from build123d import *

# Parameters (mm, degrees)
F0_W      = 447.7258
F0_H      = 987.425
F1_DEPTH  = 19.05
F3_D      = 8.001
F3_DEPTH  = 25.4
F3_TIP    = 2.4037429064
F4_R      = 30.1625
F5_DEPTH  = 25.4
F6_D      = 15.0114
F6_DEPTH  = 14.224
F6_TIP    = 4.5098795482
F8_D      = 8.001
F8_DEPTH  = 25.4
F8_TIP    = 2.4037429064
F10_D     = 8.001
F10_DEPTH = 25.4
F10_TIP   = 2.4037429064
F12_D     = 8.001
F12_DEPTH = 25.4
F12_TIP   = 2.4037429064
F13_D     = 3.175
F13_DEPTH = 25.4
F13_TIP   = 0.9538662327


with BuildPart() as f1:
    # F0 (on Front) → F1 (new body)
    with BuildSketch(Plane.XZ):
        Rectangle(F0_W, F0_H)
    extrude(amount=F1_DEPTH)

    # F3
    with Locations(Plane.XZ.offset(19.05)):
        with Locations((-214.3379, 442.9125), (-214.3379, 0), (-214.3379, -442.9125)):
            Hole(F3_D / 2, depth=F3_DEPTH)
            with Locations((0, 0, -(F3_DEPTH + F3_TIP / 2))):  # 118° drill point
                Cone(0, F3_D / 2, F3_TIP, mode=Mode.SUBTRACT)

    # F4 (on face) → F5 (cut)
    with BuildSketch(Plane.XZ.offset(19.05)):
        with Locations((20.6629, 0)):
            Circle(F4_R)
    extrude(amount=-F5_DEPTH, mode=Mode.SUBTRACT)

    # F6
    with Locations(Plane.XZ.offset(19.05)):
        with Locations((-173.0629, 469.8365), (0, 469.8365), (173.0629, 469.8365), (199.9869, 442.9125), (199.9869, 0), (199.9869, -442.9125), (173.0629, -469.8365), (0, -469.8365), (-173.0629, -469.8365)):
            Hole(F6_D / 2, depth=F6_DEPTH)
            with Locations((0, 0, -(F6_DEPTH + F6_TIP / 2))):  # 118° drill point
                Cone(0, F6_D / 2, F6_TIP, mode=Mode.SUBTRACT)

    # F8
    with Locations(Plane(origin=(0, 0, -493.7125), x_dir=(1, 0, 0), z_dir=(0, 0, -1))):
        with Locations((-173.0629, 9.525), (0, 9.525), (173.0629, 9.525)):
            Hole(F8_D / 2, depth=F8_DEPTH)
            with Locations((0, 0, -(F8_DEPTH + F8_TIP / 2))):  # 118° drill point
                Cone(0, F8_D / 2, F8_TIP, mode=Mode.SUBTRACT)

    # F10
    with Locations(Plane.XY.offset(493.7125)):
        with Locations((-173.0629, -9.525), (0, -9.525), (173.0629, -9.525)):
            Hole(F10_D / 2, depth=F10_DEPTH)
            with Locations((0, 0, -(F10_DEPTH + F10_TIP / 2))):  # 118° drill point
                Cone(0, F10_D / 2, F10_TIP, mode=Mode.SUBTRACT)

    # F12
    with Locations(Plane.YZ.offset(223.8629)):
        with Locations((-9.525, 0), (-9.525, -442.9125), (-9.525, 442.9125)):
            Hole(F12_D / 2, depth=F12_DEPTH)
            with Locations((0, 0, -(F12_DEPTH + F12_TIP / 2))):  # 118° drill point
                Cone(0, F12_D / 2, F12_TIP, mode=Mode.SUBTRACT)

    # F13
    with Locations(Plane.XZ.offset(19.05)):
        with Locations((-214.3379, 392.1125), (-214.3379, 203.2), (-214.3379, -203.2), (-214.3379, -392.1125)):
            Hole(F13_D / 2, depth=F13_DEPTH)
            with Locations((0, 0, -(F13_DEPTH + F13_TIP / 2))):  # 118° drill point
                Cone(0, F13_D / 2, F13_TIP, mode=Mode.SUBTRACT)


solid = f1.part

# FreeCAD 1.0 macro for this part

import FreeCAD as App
import Part
import Sketcher
from FreeCAD import Vector
Q = App.Units.Quantity


def add_polygon(sketch, points):
    """Adds a closed chain of lines whose ends are joined by coincident constraints."""
    first, n = sketch.GeometryCount, len(points)
    for a, b in zip(points, points[1:] + points[:1]):
        sketch.addGeometry(Part.LineSegment(App.Vector(*a, 0), App.Vector(*b, 0)), False)
    for i in range(n):
        sketch.addConstraint(Sketcher.Constraint("Coincident", first + i, 2, first + (i + 1) % n, 1))

doc = App.newDocument("Part")
body = doc.addObject("PartDesign::Body", "Body")

# Sketch on XZ plane
sketch1 = body.newObject("Sketcher::SketchObject", "Sketch")
sketch1.AttachmentSupport = (doc.getObject("XZ_Plane"), [""])
sketch1.MapMode = "FlatFace"
add_polygon(sketch1, [(-224, 494), (-224, -494), (224, -494), (224, 494)])  # lines 0-3
sketch1.addConstraint(Sketcher.Constraint("Vertical", 0))
sketch1.addConstraint(Sketcher.Constraint("Horizontal", 1))
sketch1.addConstraint(Sketcher.Constraint("Vertical", 2))
sketch1.addConstraint(Sketcher.Constraint("Horizontal", 3))
sketch1.addConstraint(Sketcher.Constraint("Symmetric", 0, 2, 2, 2, -1, 1))
sketch1.addConstraint(Sketcher.Constraint("DistanceX", 1, 1, 1, 2, Q("17.627 in")))
sketch1.addConstraint(Sketcher.Constraint("DistanceY", 0, 2, 0, 1, Q("38.875 in")))
pad1 = body.newObject("PartDesign::Pad", "Pad")
pad1.Profile = sketch1
pad1.Length = Q("0.75 in")

# Sketch on XZ plane
sketch2 = body.newObject("Sketcher::SketchObject", "Sketch001")
sketch2.AttachmentSupport = (doc.getObject("XZ_Plane"), [""])
sketch2.MapMode = "FlatFace"
sketch2.AttachmentOffset = App.Placement(Vector(0, 0, 0.75 * 25.4), App.Rotation())
sketch2.addGeometry(Part.Circle(Vector(-214.3, 442.9, 0), Vector(0, 0, 1), 4), False)
sketch2.addGeometry(Part.Circle(Vector(-214.3, 0, 0), Vector(0, 0, 1), 4), False)
sketch2.addGeometry(Part.Circle(Vector(-214.3, -442.9, 0), Vector(0, 0, 1), 4), False)
sketch2.addConstraint(Sketcher.Constraint("Equal", 0, 1))
sketch2.addConstraint(Sketcher.Constraint("Equal", 1, 2))
sketch2.addConstraint(Sketcher.Constraint("Symmetric", 0, 3, 2, 3, -1))
sketch2.addConstraint(Sketcher.Constraint("PointOnObject", 1, 3, -1))
sketch2.addConstraint(Sketcher.Constraint("Vertical", 0, 3, 1, 3))
sketch2.addConstraint(Sketcher.Constraint("Diameter", 0, Q("0.315 in")))
sketch2.addConstraint(Sketcher.Constraint("DistanceY", -1, 1, 0, 3, Q("17.4375 in")))
sketch2.addConstraint(Sketcher.Constraint("DistanceX", 0, 3, -1, 1, Q("8.4385 in")))
doc.recompute()
hole = body.newObject("PartDesign::Hole", "Hole")
hole.Profile = sketch2
hole.ThreadType = "None"
hole.Diameter = Q("0.315 in")
hole.DepthType = "Dimension"
hole.Depth = Q("1 in")
hole.DrillPoint = "Angled"
hole.DrillPointAngle = 118

# Sketch on XZ plane
sketch3 = body.newObject("Sketcher::SketchObject", "Sketch002")
sketch3.AttachmentSupport = (doc.getObject("XZ_Plane"), [""])
sketch3.MapMode = "FlatFace"
sketch3.AttachmentOffset = App.Placement(Vector(0, 0, 0.75 * 25.4), App.Rotation())
sketch3.addGeometry(Part.Circle(Vector(21, 0, 0), Vector(0, 0, 1), 30), False)
sketch3.addConstraint(Sketcher.Constraint("PointOnObject", 0, 3, -1))
sketch3.addConstraint(Sketcher.Constraint("Diameter", 0, Q("2.375 in")))
sketch3.addConstraint(Sketcher.Constraint("DistanceX", -1, 1, 0, 3, Q("0.8135 in")))
pocket1 = body.newObject("PartDesign::Pocket", "Pocket")
pocket1.Profile = sketch3
pocket1.Length = Q("1 in")

# Sketch on XZ plane
sketch4 = body.newObject("Sketcher::SketchObject", "Sketch003")
sketch4.AttachmentSupport = (doc.getObject("XZ_Plane"), [""])
sketch4.MapMode = "FlatFace"
sketch4.AttachmentOffset = App.Placement(Vector(0, 0, 0.75 * 25.4), App.Rotation())
sketch4.addGeometry(Part.Circle(Vector(-173, 470, 0), Vector(0, 0, 1), 8), False)
sketch4.addGeometry(Part.Circle(Vector(0, 470, 0), Vector(0, 0, 1), 8), False)
sketch4.addGeometry(Part.Circle(Vector(173, 470, 0), Vector(0, 0, 1), 8), False)
sketch4.addGeometry(Part.Circle(Vector(200, 443, 0), Vector(0, 0, 1), 8), False)
sketch4.addGeometry(Part.Circle(Vector(200, 0, 0), Vector(0, 0, 1), 8), False)
sketch4.addGeometry(Part.Circle(Vector(200, -443, 0), Vector(0, 0, 1), 8), False)
sketch4.addGeometry(Part.Circle(Vector(173, -470, 0), Vector(0, 0, 1), 8), False)
sketch4.addGeometry(Part.Circle(Vector(0, -470, 0), Vector(0, 0, 1), 8), False)
sketch4.addGeometry(Part.Circle(Vector(-173, -470, 0), Vector(0, 0, 1), 8), False)
sketch4.addConstraint(Sketcher.Constraint("Equal", 0, 1))
sketch4.addConstraint(Sketcher.Constraint("Equal", 1, 2))
sketch4.addConstraint(Sketcher.Constraint("Equal", 2, 3))
sketch4.addConstraint(Sketcher.Constraint("Equal", 3, 4))
sketch4.addConstraint(Sketcher.Constraint("Equal", 4, 5))
sketch4.addConstraint(Sketcher.Constraint("Equal", 5, 6))
sketch4.addConstraint(Sketcher.Constraint("Equal", 6, 7))
sketch4.addConstraint(Sketcher.Constraint("Equal", 7, 8))
sketch4.addConstraint(Sketcher.Constraint("Symmetric", 0, 3, 6, 3, -1, 1))
sketch4.addConstraint(Sketcher.Constraint("Symmetric", 1, 3, 7, 3, -1, 1))
sketch4.addConstraint(Sketcher.Constraint("Symmetric", 2, 3, 8, 3, -1, 1))
sketch4.addConstraint(Sketcher.Constraint("Symmetric", 0, 3, 2, 3, -2))
sketch4.addConstraint(Sketcher.Constraint("Symmetric", 3, 3, 5, 3, -1))
sketch4.addConstraint(Sketcher.Constraint("PointOnObject", 1, 3, -2))
sketch4.addConstraint(Sketcher.Constraint("PointOnObject", 4, 3, -1))
sketch4.addConstraint(Sketcher.Constraint("Horizontal", 0, 3, 1, 3))
sketch4.addConstraint(Sketcher.Constraint("Vertical", 3, 3, 4, 3))
sketch4.addConstraint(Sketcher.Constraint("Diameter", 0, Q("0.591 in")))
sketch4.addConstraint(Sketcher.Constraint("DistanceX", 2, 3, 3, 3, Q("1.06 in")))
sketch4.addConstraint(Sketcher.Constraint("DistanceY", 3, 3, 2, 3, Q("1.06 in")))
sketch4.addConstraint(Sketcher.Constraint("DistanceY", -1, 1, 3, 3, Q("17.4375 in")))
sketch4.addConstraint(Sketcher.Constraint("DistanceX", 0, 3, 2, 3, Q("13.627 in")))
doc.recompute()
hole2 = body.newObject("PartDesign::Hole", "Hole001")
hole2.Profile = sketch4
hole2.ThreadType = "None"
hole2.Diameter = Q("0.591 in")
hole2.DepthType = "Dimension"
hole2.Depth = Q("0.56 in")
hole2.DrillPoint = "Angled"
hole2.DrillPointAngle = 118

# Sketch on XY plane
sketch5 = body.newObject("Sketcher::SketchObject", "Sketch004")
sketch5.AttachmentSupport = (doc.getObject("XY_Plane"), [""])
sketch5.MapMode = "FlatFace"
sketch5.AttachmentOffset = App.Placement(Vector(0, 0, -19.4375 * 25.4), App.Rotation())
sketch5.addGeometry(Part.Circle(Vector(-173.1, -9.5, 0), Vector(0, 0, 1), 4), False)
sketch5.addGeometry(Part.Circle(Vector(0, -9.5, 0), Vector(0, 0, 1), 4), False)
sketch5.addGeometry(Part.Circle(Vector(173.1, -9.5, 0), Vector(0, 0, 1), 4), False)
sketch5.addConstraint(Sketcher.Constraint("Equal", 0, 1))
sketch5.addConstraint(Sketcher.Constraint("Equal", 1, 2))
sketch5.addConstraint(Sketcher.Constraint("Symmetric", 0, 3, 2, 3, -2))
sketch5.addConstraint(Sketcher.Constraint("PointOnObject", 1, 3, -2))
sketch5.addConstraint(Sketcher.Constraint("Horizontal", 0, 3, 1, 3))
sketch5.addConstraint(Sketcher.Constraint("Diameter", 0, Q("0.315 in")))
sketch5.addConstraint(Sketcher.Constraint("DistanceY", 0, 3, -1, 1, Q("0.375 in")))
sketch5.addConstraint(Sketcher.Constraint("DistanceX", 0, 3, 2, 3, Q("13.627 in")))
doc.recompute()
hole3 = body.newObject("PartDesign::Hole", "Hole002")
hole3.Profile = sketch5
hole3.ThreadType = "None"
hole3.Diameter = Q("0.315 in")
hole3.DepthType = "Dimension"
hole3.Depth = Q("1 in")
hole3.DrillPoint = "Angled"
hole3.DrillPointAngle = 118
hole3.Reversed = True

# Sketch on XY plane
sketch6 = body.newObject("Sketcher::SketchObject", "Sketch005")
sketch6.AttachmentSupport = (doc.getObject("XY_Plane"), [""])
sketch6.MapMode = "FlatFace"
sketch6.AttachmentOffset = App.Placement(Vector(0, 0, 19.4375 * 25.4), App.Rotation())
sketch6.addGeometry(Part.Circle(Vector(-173.1, -9.5, 0), Vector(0, 0, 1), 4), False)
sketch6.addGeometry(Part.Circle(Vector(0, -9.5, 0), Vector(0, 0, 1), 4), False)
sketch6.addGeometry(Part.Circle(Vector(173.1, -9.5, 0), Vector(0, 0, 1), 4), False)
sketch6.addConstraint(Sketcher.Constraint("Equal", 0, 1))
sketch6.addConstraint(Sketcher.Constraint("Equal", 1, 2))
sketch6.addConstraint(Sketcher.Constraint("Symmetric", 0, 3, 2, 3, -2))
sketch6.addConstraint(Sketcher.Constraint("PointOnObject", 1, 3, -2))
sketch6.addConstraint(Sketcher.Constraint("Horizontal", 0, 3, 1, 3))
sketch6.addConstraint(Sketcher.Constraint("Diameter", 0, Q("0.315 in")))
sketch6.addConstraint(Sketcher.Constraint("DistanceY", 0, 3, -1, 1, Q("0.375 in")))
sketch6.addConstraint(Sketcher.Constraint("DistanceX", 0, 3, 2, 3, Q("13.627 in")))
doc.recompute()
hole4 = body.newObject("PartDesign::Hole", "Hole003")
hole4.Profile = sketch6
hole4.ThreadType = "None"
hole4.Diameter = Q("0.315 in")
hole4.DepthType = "Dimension"
hole4.Depth = Q("1 in")
hole4.DrillPoint = "Angled"
hole4.DrillPointAngle = 118

# Sketch on YZ plane
sketch7 = body.newObject("Sketcher::SketchObject", "Sketch006")
sketch7.AttachmentSupport = (doc.getObject("YZ_Plane"), [""])
sketch7.MapMode = "FlatFace"
sketch7.AttachmentOffset = App.Placement(Vector(0, 0, 8.8135 * 25.4), App.Rotation())
sketch7.addGeometry(Part.Circle(Vector(-9.5, 0, 0), Vector(0, 0, 1), 4), False)
sketch7.addGeometry(Part.Circle(Vector(-9.5, -442.9, 0), Vector(0, 0, 1), 4), False)
sketch7.addGeometry(Part.Circle(Vector(-9.5, 442.9, 0), Vector(0, 0, 1), 4), False)
sketch7.addConstraint(Sketcher.Constraint("Equal", 0, 1))
sketch7.addConstraint(Sketcher.Constraint("Equal", 1, 2))
sketch7.addConstraint(Sketcher.Constraint("Symmetric", 1, 3, 2, 3, -1))
sketch7.addConstraint(Sketcher.Constraint("PointOnObject", 0, 3, -1))
sketch7.addConstraint(Sketcher.Constraint("Vertical", 0, 3, 1, 3))
sketch7.addConstraint(Sketcher.Constraint("Diameter", 0, Q("0.315 in")))
sketch7.addConstraint(Sketcher.Constraint("DistanceX", 0, 3, -1, 1, Q("0.375 in")))
sketch7.addConstraint(Sketcher.Constraint("DistanceY", 1, 3, -1, 1, Q("17.4375 in")))
doc.recompute()
hole5 = body.newObject("PartDesign::Hole", "Hole004")
hole5.Profile = sketch7
hole5.ThreadType = "None"
hole5.Diameter = Q("0.315 in")
hole5.DepthType = "Dimension"
hole5.Depth = Q("1 in")
hole5.DrillPoint = "Angled"
hole5.DrillPointAngle = 118

# Sketch on XZ plane
sketch8 = body.newObject("Sketcher::SketchObject", "Sketch007")
sketch8.AttachmentSupport = (doc.getObject("XZ_Plane"), [""])
sketch8.MapMode = "FlatFace"
sketch8.AttachmentOffset = App.Placement(Vector(0, 0, 0.75 * 25.4), App.Rotation())
sketch8.addGeometry(Part.Circle(Vector(-214.3, 392.1, 0), Vector(0, 0, 1), 1.6), False)
sketch8.addGeometry(Part.Circle(Vector(-214.3, 203.2, 0), Vector(0, 0, 1), 1.6), False)
sketch8.addGeometry(Part.Circle(Vector(-214.3, -203.2, 0), Vector(0, 0, 1), 1.6), False)
sketch8.addGeometry(Part.Circle(Vector(-214.3, -392.1, 0), Vector(0, 0, 1), 1.6), False)
sketch8.addConstraint(Sketcher.Constraint("Equal", 0, 1))
sketch8.addConstraint(Sketcher.Constraint("Equal", 1, 2))
sketch8.addConstraint(Sketcher.Constraint("Equal", 2, 3))
sketch8.addConstraint(Sketcher.Constraint("Symmetric", 1, 3, 2, 3, -1))
sketch8.addConstraint(Sketcher.Constraint("Symmetric", 0, 3, 3, 3, -1))
sketch8.addConstraint(Sketcher.Constraint("Vertical", 0, 3, 1, 3))
sketch8.addConstraint(Sketcher.Constraint("Diameter", 0, Q("0.125 in")))
sketch8.addConstraint(Sketcher.Constraint("DistanceY", -1, 1, 1, 3, Q("8 in")))
sketch8.addConstraint(Sketcher.Constraint("DistanceY", -1, 1, 0, 3, Q("15.4375 in")))
sketch8.addConstraint(Sketcher.Constraint("DistanceX", 0, 3, -1, 1, Q("8.4385 in")))
doc.recompute()
hole6 = body.newObject("PartDesign::Hole", "Hole005")
hole6.Profile = sketch8
hole6.ThreadType = "None"
hole6.Diameter = Q("0.125 in")
hole6.DepthType = "Dimension"
hole6.Depth = Q("1 in")
hole6.DrillPoint = "Angled"
hole6.DrillPointAngle = 118

doc.recompute()
